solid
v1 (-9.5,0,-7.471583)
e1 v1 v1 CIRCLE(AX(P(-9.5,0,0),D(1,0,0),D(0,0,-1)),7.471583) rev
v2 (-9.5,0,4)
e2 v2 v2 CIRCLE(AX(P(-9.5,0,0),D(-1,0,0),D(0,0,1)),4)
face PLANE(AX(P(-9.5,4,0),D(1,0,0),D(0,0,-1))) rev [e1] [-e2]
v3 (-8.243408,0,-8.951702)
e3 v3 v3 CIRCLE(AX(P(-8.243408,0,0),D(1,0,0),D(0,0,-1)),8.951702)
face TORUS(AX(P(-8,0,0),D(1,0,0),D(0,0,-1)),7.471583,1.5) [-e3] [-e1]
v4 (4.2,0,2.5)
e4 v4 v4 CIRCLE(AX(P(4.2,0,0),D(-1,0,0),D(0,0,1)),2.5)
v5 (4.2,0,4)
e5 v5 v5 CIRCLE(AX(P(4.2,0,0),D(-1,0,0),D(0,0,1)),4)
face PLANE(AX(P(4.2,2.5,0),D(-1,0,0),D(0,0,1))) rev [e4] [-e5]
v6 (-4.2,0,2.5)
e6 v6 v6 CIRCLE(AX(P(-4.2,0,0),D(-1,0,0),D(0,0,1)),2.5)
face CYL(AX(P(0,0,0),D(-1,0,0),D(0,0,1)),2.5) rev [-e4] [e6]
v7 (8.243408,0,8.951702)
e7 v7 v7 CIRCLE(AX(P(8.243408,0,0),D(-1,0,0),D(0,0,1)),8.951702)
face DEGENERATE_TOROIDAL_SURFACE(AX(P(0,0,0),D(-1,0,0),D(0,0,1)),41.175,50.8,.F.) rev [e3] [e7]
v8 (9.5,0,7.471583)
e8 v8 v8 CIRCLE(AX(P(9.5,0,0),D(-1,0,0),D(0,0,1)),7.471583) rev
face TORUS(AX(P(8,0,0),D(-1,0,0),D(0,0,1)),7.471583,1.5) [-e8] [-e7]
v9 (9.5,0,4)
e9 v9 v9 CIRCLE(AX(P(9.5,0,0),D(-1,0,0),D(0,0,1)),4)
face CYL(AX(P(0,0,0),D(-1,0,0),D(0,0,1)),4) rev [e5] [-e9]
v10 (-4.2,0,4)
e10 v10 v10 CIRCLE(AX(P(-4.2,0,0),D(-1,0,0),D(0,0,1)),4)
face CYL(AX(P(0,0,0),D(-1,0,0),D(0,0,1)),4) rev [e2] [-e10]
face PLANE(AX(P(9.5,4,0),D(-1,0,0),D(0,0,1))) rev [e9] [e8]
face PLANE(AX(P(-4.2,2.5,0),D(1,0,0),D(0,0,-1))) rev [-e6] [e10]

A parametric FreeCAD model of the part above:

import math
import FreeCAD as App
import Part
import Sketcher
Q = App.Units.Quantity


def edges_at(feature, points):
    """Names of the edges that pass closest to the given points."""
    edges = feature.Shape.Edges
    near = lambda p: min(range(len(edges)), key=lambda i: edges[i].distToShape(Part.Vertex(*p))[0])
    return sorted({f"Edge{near(p) + 1}" for p in points})

doc = App.newDocument("Part")
params = doc.addObject("Spreadsheet::Sheet", "Params")
for row, (alias, value) in enumerate([
    ("sketch1_radius", "50.8 mm"),
    ("sketch1_width", "8.4 mm"),
    ("sketch1_width2", "5.3 mm"),
    ("sketch1_height", "1.5 mm"),
    ("revolution_angle", "360 deg"),
    ("fillet_radius", "1.5 mm"),
], start=1):
    params.set(f"A{row}", alias)
    params.set(f"B{row}", "=" + value)
    params.setAlias(f"B{row}", alias)

body = doc.addObject("PartDesign::Body", "Body")

sketch1 = doc.addObject("Sketcher::SketchObject", "Sketch")
body.addObject(sketch1)
sketch1.AttachmentSupport = (doc.XY_Plane, [""])
sketch1.MapMode = "FlatFace"
sketch1.addGeometry([
    Part.LineSegment(App.Vector(-4.2, 2.5, 0), App.Vector(4.2, 2.5, 0)),
    Part.LineSegment(App.Vector(4.2, 2.5, 0), App.Vector(4.2, 4, 0)),
    Part.LineSegment(App.Vector(4.2, 4, 0), App.Vector(9.5, 4, 0)),
    Part.LineSegment(App.Vector(9.5, 4, 0), App.Vector(9.5, 8.7, 0)),
    Part.ArcOfCircle(Part.Circle(App.Vector(0, -41.2, 0), App.Vector(0, 0, 1), 50.8), math.radians(79), math.radians(101)),
    Part.LineSegment(App.Vector(-9.5, 8.7, 0), App.Vector(-9.5, 4, 0)),
    Part.LineSegment(App.Vector(-9.5, 4, 0), App.Vector(-4.2, 4, 0)),
    Part.LineSegment(App.Vector(-4.2, 4, 0), App.Vector(-4.2, 2.5, 0)),
], False)
sketch1.addConstraint([
    Sketcher.Constraint("Coincident", 0, 2, 1, 1),
    Sketcher.Constraint("Coincident", 1, 2, 2, 1),
    Sketcher.Constraint("Coincident", 2, 2, 3, 1),
    Sketcher.Constraint("Coincident", 3, 2, 4, 1),
    Sketcher.Constraint("Coincident", 4, 2, 5, 1),
    Sketcher.Constraint("Coincident", 5, 2, 6, 1),
    Sketcher.Constraint("Coincident", 6, 2, 7, 1),
    Sketcher.Constraint("Coincident", 7, 2, 0, 1),
    Sketcher.Constraint("Horizontal", 0),
    Sketcher.Constraint("Vertical", 1),
    Sketcher.Constraint("Horizontal", 2),
    Sketcher.Constraint("Vertical", 3),
    Sketcher.Constraint("Vertical", 5),
    Sketcher.Constraint("Horizontal", 6),
    Sketcher.Constraint("Vertical", 7),
    Sketcher.Constraint("Symmetric", 3, 2, 4, 2, -2),
    Sketcher.Constraint("Symmetric", 1, 2, 6, 2, -2),
    Sketcher.Constraint("Radius", 4, Q("50.8 mm")),
    Sketcher.Constraint("DistanceX", 0, 1, 0, 2, Q("8.4 mm")),
    Sketcher.Constraint("DistanceX", 2, 1, 2, 2, Q("5.3 mm")),
    Sketcher.Constraint("DistanceY", 1, 1, 1, 2, Q("1.5 mm")),
    Sketcher.Constraint("DistanceY", -1, 1, 1, 2, Q("4 mm")),
    Sketcher.Constraint("DistanceY", 4, 3, -1, 1, Q("41.175 mm")),
])
sketch1.setExpression("Constraints[17]", "Params.sketch1_radius")
sketch1.setExpression("Constraints[18]", "Params.sketch1_width")
sketch1.setExpression("Constraints[19]", "Params.sketch1_width2")
sketch1.setExpression("Constraints[20]", "Params.sketch1_height")
revolution = doc.addObject("PartDesign::Revolution", "Revolution")
body.addObject(revolution)
revolution.Profile = sketch1
revolution.ReferenceAxis = (sketch1, ["H_Axis"])
revolution.setExpression("Angle", "Params.revolution_angle")
doc.recompute()

fillet = doc.addObject("PartDesign::Fillet", "Fillet")
body.addObject(fillet)
fillet.Base = (revolution, edges_at(revolution, [(9.5, 0, -8.729), (-9.5, 0, -8.729)]))
fillet.setExpression("Radius", "Params.fillet_radius")

doc.recompute()
